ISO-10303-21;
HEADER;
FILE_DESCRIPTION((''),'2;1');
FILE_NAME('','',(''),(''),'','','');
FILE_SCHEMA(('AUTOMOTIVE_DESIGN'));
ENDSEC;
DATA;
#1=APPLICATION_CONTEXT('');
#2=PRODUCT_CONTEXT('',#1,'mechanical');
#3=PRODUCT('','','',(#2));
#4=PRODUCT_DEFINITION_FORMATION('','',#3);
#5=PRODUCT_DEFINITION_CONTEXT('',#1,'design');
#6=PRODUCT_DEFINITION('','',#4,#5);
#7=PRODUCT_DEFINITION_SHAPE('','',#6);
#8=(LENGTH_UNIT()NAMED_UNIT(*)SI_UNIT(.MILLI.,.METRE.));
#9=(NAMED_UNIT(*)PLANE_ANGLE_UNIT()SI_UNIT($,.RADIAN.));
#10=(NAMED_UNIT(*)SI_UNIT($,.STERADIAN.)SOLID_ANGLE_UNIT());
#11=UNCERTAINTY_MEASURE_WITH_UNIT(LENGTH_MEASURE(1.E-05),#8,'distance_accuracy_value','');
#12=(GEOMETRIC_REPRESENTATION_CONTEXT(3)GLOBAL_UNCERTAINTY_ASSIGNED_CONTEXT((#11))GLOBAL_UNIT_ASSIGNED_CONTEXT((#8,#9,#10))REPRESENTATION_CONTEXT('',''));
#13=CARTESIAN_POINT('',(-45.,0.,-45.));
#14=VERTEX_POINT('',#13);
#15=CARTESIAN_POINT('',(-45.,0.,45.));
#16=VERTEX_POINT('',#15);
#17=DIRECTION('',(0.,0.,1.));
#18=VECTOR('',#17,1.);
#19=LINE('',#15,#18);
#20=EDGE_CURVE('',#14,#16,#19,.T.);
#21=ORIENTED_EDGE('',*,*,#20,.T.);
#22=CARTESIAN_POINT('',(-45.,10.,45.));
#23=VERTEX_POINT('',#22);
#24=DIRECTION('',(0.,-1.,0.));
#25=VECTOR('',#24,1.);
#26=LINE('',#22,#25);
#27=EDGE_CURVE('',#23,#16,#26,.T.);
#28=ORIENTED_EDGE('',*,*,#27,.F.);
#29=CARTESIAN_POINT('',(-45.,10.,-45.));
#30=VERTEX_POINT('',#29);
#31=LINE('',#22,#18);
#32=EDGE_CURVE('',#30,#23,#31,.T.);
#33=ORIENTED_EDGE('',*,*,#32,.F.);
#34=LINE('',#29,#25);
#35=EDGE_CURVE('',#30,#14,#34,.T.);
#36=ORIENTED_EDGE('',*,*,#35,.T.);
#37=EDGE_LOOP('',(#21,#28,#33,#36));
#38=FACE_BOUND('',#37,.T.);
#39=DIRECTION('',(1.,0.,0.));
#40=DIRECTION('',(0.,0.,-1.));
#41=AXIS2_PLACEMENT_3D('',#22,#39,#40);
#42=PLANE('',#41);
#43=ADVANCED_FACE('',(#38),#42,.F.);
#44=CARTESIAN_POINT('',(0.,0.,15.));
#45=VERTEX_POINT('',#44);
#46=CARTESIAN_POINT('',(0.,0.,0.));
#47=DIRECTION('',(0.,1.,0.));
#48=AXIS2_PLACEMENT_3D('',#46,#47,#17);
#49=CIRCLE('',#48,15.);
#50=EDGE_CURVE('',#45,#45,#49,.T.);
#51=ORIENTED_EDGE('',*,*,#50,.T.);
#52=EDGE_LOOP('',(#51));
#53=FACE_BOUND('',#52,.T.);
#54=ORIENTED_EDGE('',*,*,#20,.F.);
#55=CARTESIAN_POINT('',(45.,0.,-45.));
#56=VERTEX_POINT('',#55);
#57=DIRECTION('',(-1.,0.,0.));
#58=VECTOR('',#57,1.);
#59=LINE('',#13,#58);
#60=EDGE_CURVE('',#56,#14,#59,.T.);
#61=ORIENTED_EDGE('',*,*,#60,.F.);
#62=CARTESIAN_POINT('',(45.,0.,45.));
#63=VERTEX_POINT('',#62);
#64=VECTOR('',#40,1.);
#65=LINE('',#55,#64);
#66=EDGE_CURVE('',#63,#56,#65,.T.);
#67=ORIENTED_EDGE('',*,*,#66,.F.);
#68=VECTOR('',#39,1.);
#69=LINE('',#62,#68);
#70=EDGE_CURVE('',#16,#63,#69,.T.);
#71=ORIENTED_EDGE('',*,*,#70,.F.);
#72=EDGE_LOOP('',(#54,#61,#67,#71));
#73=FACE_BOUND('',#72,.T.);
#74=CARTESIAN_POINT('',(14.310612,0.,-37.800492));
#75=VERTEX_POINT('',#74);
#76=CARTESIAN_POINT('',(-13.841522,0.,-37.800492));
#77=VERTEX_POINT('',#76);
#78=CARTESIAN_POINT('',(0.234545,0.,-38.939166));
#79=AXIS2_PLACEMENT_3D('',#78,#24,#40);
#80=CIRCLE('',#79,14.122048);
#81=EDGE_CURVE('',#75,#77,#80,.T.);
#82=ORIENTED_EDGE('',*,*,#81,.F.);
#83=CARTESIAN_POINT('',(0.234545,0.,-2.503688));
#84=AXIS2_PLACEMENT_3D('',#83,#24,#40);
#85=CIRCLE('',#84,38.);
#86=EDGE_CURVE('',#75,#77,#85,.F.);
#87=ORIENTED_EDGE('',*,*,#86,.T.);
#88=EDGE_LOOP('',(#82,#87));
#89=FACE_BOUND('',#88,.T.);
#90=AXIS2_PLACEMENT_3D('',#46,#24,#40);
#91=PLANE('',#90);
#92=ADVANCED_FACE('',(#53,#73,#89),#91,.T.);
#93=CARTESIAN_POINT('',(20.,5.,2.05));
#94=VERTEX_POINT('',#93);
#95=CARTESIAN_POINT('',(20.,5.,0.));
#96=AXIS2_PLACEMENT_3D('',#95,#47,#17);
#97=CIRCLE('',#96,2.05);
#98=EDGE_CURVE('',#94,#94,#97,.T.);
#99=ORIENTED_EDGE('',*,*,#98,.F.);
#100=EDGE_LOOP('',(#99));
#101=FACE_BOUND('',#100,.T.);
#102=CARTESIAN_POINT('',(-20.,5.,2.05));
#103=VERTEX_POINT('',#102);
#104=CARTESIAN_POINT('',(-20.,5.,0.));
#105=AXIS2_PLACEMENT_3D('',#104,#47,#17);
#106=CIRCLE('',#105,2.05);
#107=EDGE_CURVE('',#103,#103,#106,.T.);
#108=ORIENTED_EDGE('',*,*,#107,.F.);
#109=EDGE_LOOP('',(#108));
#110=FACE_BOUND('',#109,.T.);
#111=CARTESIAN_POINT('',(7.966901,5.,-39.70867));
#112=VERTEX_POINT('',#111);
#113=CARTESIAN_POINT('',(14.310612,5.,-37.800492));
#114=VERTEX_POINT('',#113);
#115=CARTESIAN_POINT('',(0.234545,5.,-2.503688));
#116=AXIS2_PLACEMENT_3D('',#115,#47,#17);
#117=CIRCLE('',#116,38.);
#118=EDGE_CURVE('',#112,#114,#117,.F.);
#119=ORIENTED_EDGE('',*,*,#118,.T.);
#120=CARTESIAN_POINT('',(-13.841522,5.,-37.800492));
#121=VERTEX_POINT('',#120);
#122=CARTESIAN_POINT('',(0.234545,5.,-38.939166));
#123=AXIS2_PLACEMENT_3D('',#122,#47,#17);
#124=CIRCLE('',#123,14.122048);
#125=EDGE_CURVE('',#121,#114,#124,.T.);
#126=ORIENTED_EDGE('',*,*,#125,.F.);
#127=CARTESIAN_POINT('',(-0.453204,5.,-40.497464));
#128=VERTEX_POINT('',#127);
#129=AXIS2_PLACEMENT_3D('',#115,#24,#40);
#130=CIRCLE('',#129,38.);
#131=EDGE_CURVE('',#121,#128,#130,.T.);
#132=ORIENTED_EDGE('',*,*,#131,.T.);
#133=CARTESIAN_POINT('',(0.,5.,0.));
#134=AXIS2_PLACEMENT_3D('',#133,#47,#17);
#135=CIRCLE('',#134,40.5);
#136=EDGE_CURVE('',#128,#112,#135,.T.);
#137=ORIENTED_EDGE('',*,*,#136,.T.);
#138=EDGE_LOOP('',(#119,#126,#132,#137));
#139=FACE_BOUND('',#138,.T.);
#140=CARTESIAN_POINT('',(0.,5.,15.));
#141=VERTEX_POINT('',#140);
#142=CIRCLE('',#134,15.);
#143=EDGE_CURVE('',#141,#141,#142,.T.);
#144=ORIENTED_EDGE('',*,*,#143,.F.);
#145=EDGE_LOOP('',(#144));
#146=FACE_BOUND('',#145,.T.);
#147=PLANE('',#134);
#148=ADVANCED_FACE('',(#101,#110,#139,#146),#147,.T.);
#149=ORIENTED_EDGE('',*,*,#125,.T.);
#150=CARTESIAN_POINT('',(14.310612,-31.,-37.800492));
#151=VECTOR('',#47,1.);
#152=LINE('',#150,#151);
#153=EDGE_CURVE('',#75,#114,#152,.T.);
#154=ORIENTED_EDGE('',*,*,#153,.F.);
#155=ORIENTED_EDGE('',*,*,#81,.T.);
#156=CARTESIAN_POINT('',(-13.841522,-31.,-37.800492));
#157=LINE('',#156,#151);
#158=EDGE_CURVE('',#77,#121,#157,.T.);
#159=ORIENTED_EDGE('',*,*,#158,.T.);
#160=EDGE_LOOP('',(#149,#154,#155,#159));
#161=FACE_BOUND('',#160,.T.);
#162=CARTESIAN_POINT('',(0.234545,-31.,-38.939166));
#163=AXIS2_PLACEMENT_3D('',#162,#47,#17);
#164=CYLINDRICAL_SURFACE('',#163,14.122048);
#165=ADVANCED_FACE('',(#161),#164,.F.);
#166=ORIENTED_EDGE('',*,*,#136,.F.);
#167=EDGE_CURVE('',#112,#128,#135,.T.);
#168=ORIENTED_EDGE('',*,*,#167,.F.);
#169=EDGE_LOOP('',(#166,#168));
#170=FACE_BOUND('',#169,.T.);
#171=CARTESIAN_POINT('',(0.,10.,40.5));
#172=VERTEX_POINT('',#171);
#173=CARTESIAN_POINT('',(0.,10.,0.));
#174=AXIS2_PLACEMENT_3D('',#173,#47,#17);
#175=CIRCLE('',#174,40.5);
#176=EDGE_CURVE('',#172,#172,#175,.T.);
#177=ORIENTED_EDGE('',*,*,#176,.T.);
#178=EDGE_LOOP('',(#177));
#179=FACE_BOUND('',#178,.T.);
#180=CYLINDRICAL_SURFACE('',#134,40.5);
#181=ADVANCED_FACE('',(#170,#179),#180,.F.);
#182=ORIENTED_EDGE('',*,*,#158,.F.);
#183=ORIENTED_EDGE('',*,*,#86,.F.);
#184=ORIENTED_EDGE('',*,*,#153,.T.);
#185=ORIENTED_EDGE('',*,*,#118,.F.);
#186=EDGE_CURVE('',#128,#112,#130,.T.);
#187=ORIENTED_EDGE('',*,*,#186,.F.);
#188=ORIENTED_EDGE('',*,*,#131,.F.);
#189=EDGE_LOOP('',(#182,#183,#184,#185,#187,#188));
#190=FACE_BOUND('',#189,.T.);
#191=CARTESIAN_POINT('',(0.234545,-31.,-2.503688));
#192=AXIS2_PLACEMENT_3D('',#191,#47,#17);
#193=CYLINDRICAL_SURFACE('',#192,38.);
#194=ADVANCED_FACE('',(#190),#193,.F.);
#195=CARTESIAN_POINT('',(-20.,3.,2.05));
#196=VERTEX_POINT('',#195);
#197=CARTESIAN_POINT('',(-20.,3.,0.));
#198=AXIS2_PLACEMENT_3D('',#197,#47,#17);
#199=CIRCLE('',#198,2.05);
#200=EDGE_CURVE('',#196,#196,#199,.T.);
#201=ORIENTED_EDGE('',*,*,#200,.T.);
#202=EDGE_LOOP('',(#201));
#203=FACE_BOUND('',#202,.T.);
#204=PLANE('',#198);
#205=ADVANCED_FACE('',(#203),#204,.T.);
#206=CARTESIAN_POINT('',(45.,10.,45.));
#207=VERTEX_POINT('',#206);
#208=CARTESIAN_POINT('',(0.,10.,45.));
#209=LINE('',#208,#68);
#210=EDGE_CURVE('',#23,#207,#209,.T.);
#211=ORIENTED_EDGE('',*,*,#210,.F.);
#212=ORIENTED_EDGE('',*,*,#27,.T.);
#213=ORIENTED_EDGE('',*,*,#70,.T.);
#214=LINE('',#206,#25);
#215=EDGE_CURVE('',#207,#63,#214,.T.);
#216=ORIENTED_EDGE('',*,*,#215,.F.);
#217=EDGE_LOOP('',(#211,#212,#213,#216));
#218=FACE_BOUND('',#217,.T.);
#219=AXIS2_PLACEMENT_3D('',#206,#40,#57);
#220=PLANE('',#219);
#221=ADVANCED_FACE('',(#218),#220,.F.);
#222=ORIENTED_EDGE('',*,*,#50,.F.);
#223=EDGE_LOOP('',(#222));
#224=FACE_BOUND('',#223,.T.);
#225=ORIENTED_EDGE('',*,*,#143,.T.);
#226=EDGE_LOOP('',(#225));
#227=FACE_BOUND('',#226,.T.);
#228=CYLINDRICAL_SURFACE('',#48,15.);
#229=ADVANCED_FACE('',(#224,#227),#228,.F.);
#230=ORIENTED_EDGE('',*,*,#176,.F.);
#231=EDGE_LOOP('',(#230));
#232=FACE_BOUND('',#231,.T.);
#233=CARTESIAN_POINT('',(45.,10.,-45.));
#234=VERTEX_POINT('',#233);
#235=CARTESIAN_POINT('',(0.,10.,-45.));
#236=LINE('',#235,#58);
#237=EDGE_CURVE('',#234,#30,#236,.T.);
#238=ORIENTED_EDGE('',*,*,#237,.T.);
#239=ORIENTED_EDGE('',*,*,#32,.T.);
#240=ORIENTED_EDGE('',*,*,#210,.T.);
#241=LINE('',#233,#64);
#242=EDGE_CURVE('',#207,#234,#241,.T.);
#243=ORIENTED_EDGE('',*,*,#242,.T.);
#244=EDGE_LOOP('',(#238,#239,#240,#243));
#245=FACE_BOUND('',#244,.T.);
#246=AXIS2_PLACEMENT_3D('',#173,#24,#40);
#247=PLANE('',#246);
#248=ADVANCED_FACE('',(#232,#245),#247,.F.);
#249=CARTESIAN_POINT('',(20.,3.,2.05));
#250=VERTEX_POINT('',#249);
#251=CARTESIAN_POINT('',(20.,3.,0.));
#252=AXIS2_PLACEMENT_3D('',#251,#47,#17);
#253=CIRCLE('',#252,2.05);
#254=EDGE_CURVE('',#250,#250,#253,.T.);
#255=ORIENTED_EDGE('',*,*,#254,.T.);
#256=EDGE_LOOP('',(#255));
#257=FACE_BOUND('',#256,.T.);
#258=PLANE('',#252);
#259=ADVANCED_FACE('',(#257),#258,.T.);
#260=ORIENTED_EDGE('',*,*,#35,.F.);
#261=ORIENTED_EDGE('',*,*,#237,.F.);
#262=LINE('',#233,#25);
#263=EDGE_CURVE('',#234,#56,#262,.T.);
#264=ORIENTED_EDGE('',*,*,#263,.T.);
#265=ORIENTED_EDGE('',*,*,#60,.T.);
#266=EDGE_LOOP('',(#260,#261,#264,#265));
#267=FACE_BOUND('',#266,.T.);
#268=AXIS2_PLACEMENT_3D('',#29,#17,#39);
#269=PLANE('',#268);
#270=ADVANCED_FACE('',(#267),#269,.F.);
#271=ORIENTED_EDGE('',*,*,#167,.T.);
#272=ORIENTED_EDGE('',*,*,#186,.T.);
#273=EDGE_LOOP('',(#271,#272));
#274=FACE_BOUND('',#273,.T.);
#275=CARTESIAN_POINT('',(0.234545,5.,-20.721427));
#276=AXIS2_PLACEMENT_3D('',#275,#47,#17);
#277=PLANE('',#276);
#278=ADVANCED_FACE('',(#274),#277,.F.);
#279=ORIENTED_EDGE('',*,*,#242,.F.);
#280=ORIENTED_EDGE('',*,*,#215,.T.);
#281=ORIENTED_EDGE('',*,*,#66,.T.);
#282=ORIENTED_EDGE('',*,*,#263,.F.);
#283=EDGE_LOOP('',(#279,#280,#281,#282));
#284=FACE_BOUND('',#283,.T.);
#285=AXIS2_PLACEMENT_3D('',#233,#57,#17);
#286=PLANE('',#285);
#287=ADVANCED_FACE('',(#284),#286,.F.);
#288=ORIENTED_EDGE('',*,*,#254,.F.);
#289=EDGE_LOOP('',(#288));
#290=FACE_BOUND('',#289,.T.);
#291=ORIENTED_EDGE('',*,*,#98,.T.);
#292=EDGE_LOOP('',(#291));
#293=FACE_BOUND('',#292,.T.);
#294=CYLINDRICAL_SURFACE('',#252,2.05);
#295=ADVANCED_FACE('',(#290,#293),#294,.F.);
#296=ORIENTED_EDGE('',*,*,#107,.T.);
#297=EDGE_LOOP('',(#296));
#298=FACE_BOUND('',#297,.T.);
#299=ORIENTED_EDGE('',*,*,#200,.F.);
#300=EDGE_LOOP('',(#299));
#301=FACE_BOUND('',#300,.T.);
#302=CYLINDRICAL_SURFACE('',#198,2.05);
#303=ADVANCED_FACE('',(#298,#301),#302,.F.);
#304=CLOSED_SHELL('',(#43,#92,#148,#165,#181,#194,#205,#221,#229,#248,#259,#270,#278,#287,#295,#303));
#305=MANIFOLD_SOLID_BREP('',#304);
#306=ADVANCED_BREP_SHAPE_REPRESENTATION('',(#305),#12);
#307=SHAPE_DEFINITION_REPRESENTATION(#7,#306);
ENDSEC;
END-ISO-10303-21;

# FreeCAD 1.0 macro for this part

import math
import FreeCAD as App
import Part
import Sketcher

V = App.Vector
Q = App.Units.Quantity

doc = App.newDocument("Part")
body = doc.addObject("PartDesign::Body", "Body")

# Sketch on XZ plane
sketch1 = body.newObject("Sketcher::SketchObject", "Sketch")
sketch1.AttachmentSupport = (doc.getObject("XZ_Plane"), [""])
sketch1.MapMode = "FlatFace"
sketch1.addGeometry([
    Part.LineSegment(V(-45, 45, 0), V(45, 45, 0)),
    Part.LineSegment(V(45, 45, 0), V(45, -45, 0)),
    Part.LineSegment(V(45, -45, 0), V(-45, -45, 0)),
    Part.LineSegment(V(-45, -45, 0), V(-45, 45, 0)),
], False)
sketch1.addConstraint([
    Sketcher.Constraint("Coincident", 0, 2, 1, 1),
    Sketcher.Constraint("Coincident", 1, 2, 2, 1),
    Sketcher.Constraint("Coincident", 2, 2, 3, 1),
    Sketcher.Constraint("Coincident", 3, 2, 0, 1),
    Sketcher.Constraint("Horizontal", 0),
    Sketcher.Constraint("Vertical", 1),
    Sketcher.Constraint("Horizontal", 2),
    Sketcher.Constraint("Vertical", 3),
    Sketcher.Constraint("Symmetric", 0, 2, 2, 2, -1, 1),
    Sketcher.Constraint("Equal", 2, 1),
    Sketcher.Constraint("DistanceX", 0, 1, 0, 2, Q("90 mm")),
])
pad1 = body.newObject("PartDesign::Pad", "Pad")
pad1.Profile = sketch1
pad1.Length = 10
pad1.Reversed = True

# Sketch on XZ plane
sketch2 = body.newObject("Sketcher::SketchObject", "Sketch001")
sketch2.AttachmentSupport = (doc.getObject("XZ_Plane"), [""])
sketch2.MapMode = "FlatFace"
sketch2.AttachmentOffset = App.Placement(V(0, 0, -10), App.Rotation())
sketch2.addGeometry(Part.Circle(V(0, 0, 0), V(0, 0, 1), 40.5), False)
sketch2.addConstraint([
    Sketcher.Constraint("Coincident", 0, 3, -1, 1),
    Sketcher.Constraint("Diameter", 0, Q("81 mm")),
])
pocket1 = body.newObject("PartDesign::Pocket", "Pocket")
pocket1.Profile = sketch2
pocket1.Length = 5
pocket1.Reversed = True

# Sketch on XZ plane
sketch3 = body.newObject("Sketcher::SketchObject", "Sketch002")
sketch3.AttachmentSupport = (doc.getObject("XZ_Plane"), [""])
sketch3.MapMode = "FlatFace"
sketch3.AttachmentOffset = App.Placement(V(0, 0, -5), App.Rotation())
sketch3.addGeometry([
    Part.Circle(V(-20, 0, 0), V(0, 0, 1), 2.05),
    Part.Circle(V(20, 0, 0), V(0, 0, 1), 2.05),
], False)
sketch3.addConstraint([
    Sketcher.Constraint("Equal", 0, 1),
    Sketcher.Constraint("Symmetric", 0, 3, 1, 3, -1, 1),
    Sketcher.Constraint("PointOnObject", 0, 3, -1),
    Sketcher.Constraint("Diameter", 0, Q("4.1 mm")),
    Sketcher.Constraint("DistanceX", 0, 3, -1, 1, Q("20 mm")),
])
pocket2 = body.newObject("PartDesign::Pocket", "Pocket001")
pocket2.Profile = sketch3
pocket2.Length = 2
pocket2.Reversed = True

# Sketch on XZ plane
sketch4 = body.newObject("Sketcher::SketchObject", "Sketch003")
sketch4.AttachmentSupport = (doc.getObject("XZ_Plane"), [""])
sketch4.MapMode = "FlatFace"
sketch4.AttachmentOffset = App.Placement(V(0, 0, -5), App.Rotation())
sketch4.addGeometry(Part.Circle(V(0, 0, 0), V(0, 0, 1), 15), False)
sketch4.addConstraint([
    Sketcher.Constraint("Coincident", 0, 3, -1, 1),
    Sketcher.Constraint("Diameter", 0, Q("30 mm")),
])
pocket3 = body.newObject("PartDesign::Pocket", "Pocket002")
pocket3.Profile = sketch4
pocket3.Type = "ThroughAll"
pocket3.Reversed = True

# Sketch on XZ plane
sketch5 = body.newObject("Sketcher::SketchObject", "Sketch004")
sketch5.AttachmentSupport = (doc.getObject("XZ_Plane"), [""])
sketch5.MapMode = "FlatFace"
sketch5.AttachmentOffset = App.Placement(V(0, 0, -5), App.Rotation())
sketch5.addGeometry([
    Part.ArcOfCircle(Part.Circle(V(0.234545, -38.939166, 0), V(0, 0, 1), 14.122048), math.radians(4.624834), math.radians(175.375166)),
    Part.ArcOfCircle(Part.Circle(V(0.234545, -2.503688, 0), V(0, 0, 1), 38), math.radians(-111.741695), math.radians(-68.258305)),
], False)
sketch5.addConstraint([
    Sketcher.Constraint("Coincident", 0, 1, 1, 2),
    Sketcher.Constraint("Coincident", 1, 1, 0, 2),
    Sketcher.Constraint("Horizontal", 0, 1, 1, 1),
    Sketcher.Constraint("Radius", 1, Q("38 mm")),
    Sketcher.Constraint("Radius", 0, Q("14.122048 mm")),
    Sketcher.Constraint("DistanceY", 1, 3, -1, 1, Q("2.503688 mm")),
    Sketcher.Constraint("DistanceX", -1, 1, 0, 1, Q("14.310612 mm")),
    Sketcher.Constraint("DistanceY", 0, 1, -1, 1, Q("37.800492 mm")),
])
pocket4 = body.newObject("PartDesign::Pocket", "Pocket003")
pocket4.Profile = sketch5
pocket4.Length = 36
pocket4.Reversed = True

doc.recompute()
